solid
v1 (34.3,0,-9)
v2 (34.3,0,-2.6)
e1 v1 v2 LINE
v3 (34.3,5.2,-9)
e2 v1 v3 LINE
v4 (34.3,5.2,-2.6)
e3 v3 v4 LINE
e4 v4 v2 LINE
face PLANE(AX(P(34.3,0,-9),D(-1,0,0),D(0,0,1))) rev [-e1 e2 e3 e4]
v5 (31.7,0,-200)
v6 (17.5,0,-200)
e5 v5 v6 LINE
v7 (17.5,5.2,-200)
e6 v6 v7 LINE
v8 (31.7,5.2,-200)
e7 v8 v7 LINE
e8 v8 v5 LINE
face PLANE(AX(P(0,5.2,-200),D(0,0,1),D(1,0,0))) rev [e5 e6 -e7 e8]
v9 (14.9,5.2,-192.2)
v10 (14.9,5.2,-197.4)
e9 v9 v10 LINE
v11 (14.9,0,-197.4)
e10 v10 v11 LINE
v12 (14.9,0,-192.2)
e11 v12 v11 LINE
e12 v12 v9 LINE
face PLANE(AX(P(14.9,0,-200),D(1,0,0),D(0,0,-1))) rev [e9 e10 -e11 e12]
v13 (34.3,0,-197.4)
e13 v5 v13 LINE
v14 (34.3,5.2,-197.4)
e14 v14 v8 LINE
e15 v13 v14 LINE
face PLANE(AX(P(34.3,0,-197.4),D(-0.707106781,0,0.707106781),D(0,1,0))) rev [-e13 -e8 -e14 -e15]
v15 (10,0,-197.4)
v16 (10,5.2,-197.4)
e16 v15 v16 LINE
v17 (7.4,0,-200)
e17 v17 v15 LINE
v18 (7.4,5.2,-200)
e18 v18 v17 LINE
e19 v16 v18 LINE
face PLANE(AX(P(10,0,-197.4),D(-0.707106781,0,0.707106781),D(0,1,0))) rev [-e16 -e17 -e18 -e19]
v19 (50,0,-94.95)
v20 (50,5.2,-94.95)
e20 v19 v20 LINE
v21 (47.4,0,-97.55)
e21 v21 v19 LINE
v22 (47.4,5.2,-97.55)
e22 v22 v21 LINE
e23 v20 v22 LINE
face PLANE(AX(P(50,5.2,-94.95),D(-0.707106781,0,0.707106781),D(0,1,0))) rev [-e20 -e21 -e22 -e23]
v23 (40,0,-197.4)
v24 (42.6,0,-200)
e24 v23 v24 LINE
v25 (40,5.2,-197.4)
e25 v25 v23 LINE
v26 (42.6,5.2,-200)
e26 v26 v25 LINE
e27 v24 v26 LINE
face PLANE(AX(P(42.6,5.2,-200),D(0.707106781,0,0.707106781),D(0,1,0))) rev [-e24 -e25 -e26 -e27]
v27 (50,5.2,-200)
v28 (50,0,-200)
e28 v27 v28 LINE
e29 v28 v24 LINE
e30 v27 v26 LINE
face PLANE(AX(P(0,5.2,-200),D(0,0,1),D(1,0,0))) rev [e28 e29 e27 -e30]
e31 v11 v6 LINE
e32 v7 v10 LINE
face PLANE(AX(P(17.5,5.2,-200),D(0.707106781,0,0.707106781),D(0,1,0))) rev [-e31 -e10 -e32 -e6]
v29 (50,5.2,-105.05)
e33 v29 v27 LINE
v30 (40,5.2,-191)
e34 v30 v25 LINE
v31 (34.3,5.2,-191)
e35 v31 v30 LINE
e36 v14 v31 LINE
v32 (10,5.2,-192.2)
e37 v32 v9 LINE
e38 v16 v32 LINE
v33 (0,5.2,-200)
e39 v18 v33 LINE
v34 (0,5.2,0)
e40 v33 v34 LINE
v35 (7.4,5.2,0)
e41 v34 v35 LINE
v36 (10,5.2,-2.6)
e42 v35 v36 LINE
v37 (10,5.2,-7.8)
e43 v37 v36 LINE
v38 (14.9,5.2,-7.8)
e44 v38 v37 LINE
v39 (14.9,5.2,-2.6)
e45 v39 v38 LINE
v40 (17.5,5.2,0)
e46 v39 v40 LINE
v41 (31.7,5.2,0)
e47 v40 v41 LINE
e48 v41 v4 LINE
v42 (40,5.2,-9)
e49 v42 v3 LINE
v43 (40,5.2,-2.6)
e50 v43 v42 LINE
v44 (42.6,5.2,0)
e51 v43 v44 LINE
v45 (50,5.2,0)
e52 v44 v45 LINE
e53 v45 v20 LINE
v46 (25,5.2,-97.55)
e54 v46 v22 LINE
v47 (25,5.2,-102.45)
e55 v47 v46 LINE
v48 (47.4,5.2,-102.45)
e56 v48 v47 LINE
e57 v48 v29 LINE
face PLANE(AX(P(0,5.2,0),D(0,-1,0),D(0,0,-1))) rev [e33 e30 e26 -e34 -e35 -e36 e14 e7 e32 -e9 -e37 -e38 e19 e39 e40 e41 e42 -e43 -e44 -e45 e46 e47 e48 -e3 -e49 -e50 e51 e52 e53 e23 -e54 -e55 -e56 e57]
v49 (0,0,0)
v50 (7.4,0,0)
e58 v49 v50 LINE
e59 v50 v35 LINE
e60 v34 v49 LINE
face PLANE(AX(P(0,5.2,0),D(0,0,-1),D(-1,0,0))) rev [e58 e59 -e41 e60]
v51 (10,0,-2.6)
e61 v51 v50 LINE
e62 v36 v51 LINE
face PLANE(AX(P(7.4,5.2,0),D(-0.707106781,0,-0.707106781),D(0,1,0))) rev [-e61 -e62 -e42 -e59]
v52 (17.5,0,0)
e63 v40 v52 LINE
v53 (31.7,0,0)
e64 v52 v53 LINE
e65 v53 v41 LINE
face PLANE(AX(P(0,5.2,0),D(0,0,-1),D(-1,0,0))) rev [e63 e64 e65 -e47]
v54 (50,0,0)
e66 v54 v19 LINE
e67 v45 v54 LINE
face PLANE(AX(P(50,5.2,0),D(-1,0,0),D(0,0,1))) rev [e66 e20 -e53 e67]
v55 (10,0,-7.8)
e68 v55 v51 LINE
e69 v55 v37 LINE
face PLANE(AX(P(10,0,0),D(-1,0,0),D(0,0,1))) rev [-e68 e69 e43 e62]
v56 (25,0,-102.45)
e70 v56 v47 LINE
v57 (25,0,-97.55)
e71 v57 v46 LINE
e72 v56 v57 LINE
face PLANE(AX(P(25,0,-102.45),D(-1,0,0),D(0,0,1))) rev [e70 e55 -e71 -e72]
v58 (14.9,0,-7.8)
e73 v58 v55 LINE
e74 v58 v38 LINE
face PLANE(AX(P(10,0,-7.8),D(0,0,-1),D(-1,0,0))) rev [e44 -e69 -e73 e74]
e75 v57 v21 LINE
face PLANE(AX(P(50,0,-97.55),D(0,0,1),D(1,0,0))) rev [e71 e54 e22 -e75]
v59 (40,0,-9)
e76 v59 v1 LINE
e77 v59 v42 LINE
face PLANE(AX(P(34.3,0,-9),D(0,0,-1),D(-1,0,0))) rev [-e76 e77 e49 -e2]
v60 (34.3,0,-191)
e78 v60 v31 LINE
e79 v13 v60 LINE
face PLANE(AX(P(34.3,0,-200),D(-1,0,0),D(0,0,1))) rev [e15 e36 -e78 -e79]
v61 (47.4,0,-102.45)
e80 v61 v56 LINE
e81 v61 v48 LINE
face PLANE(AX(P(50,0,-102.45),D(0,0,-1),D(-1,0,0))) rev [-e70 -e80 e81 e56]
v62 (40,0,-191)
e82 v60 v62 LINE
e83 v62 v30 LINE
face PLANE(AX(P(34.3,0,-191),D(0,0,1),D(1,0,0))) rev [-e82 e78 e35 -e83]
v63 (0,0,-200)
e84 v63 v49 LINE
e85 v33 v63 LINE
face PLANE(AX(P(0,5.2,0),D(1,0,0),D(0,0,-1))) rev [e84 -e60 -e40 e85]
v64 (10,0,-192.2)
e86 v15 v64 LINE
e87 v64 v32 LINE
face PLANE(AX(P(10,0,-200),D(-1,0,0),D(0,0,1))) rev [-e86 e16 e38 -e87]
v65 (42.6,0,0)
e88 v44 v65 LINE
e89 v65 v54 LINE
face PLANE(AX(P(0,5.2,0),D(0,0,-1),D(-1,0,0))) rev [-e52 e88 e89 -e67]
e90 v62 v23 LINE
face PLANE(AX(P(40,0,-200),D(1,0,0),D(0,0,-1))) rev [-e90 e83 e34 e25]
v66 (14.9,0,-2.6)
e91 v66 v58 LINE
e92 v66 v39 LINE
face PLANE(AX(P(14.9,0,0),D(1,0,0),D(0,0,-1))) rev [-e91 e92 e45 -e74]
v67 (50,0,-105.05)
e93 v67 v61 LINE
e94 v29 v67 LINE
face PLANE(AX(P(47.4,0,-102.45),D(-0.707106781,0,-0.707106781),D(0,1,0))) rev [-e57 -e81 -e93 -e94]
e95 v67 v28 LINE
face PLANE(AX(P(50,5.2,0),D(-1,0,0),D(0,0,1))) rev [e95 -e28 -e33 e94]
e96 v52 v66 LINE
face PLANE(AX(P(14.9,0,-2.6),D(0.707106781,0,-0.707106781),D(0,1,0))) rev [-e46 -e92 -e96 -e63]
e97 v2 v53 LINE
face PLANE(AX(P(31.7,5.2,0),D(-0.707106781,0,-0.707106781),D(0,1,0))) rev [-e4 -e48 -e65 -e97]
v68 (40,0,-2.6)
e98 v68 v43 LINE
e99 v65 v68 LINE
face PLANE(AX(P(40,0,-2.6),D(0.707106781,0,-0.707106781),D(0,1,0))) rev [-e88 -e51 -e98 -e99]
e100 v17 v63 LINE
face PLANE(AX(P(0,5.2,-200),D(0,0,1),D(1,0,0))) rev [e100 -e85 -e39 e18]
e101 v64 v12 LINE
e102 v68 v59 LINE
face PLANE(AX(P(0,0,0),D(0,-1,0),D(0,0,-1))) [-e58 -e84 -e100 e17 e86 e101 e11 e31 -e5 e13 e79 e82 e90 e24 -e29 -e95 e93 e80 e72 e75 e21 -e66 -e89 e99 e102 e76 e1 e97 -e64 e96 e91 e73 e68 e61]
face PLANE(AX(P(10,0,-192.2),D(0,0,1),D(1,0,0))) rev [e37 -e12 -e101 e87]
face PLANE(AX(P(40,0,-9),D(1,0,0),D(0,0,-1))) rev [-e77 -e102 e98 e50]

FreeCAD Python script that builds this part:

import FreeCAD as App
import Part
import Sketcher


def edges_at(feature, points):
    """Names of the edges that pass closest to the given points."""
    edges = feature.Shape.Edges
    near = lambda p: min(range(len(edges)), key=lambda i: edges[i].distToShape(Part.Vertex(*p))[0])
    return sorted({f"Edge{near(p) + 1}" for p in points})

doc = App.newDocument("Part")
params = doc.addObject("Spreadsheet::Sheet", "Params")
for row, (alias, value) in enumerate([
    ("sketch1_width", "50 mm"),
    ("sketch1_height", "200 mm"),
    ("pad1_length", "5.2 mm"),
    ("sketch2_width", "25 mm"),
    ("sketch2_height", "9 mm"),
    ("sketch2_width2", "4.9 mm"),
    ("sketch2_width3", "5.7 mm"),
    ("sketch2_height2", "7.8 mm"),
    ("pocket1_length", "5.2 mm"),
    ("chamfer_size", "2.6 mm"),
], start=1):
    params.set(f"A{row}", alias)
    params.set(f"B{row}", "=" + value)
    params.setAlias(f"B{row}", alias)

body = doc.addObject("PartDesign::Body", "Body")

# Sketch on XZ plane
sketch1 = doc.addObject("Sketcher::SketchObject", "Sketch")
body.addObject(sketch1)
sketch1.AttachmentSupport = (doc.XZ_Plane, [""])
sketch1.MapMode = "FlatFace"
sketch1.addGeometry(Part.LineSegment(App.Vector(0, -200, 0), App.Vector(0, 0, 0)), False)
sketch1.addGeometry(Part.LineSegment(App.Vector(0, 0, 0), App.Vector(50, 0, 0)), False)
sketch1.addGeometry(Part.LineSegment(App.Vector(50, 0, 0), App.Vector(50, -200, 0)), False)
sketch1.addGeometry(Part.LineSegment(App.Vector(50, -200, 0), App.Vector(0, -200, 0)), False)
sketch1.addConstraint(Sketcher.Constraint("Coincident", 0, 2, 1, 1))
sketch1.addConstraint(Sketcher.Constraint("Coincident", 1, 2, 2, 1))
sketch1.addConstraint(Sketcher.Constraint("Coincident", 2, 2, 3, 1))
sketch1.addConstraint(Sketcher.Constraint("Coincident", 3, 2, 0, 1))
sketch1.addConstraint(Sketcher.Constraint("Vertical", 0))
sketch1.addConstraint(Sketcher.Constraint("Horizontal", 1))
sketch1.addConstraint(Sketcher.Constraint("Vertical", 2))
sketch1.addConstraint(Sketcher.Constraint("Horizontal", 3))
sketch1.addConstraint(Sketcher.Constraint("Coincident", 0, 2, -1, 1))
sketch1.addConstraint(Sketcher.Constraint("DistanceX", 1, 1, 1, 2, 50.0))
sketch1.addConstraint(Sketcher.Constraint("DistanceY", 0, 1, 0, 2, 200.0))
sketch1.setExpression("Constraints[9]", "Params.sketch1_width")
sketch1.setExpression("Constraints[10]", "Params.sketch1_height")
pad1 = doc.addObject("PartDesign::Pad", "Pad")
body.addObject(pad1)
pad1.Profile = sketch1
pad1.setExpression("Length", "Params.pad1_length")
pad1.Reversed = True

# Sketch on XZ plane
sketch2 = doc.addObject("Sketcher::SketchObject", "Sketch001")
body.addObject(sketch2)
sketch2.AttachmentSupport = (doc.XZ_Plane, [""])
sketch2.MapMode = "FlatFace"
sketch2.AttachmentOffset = App.Placement(App.Vector(0, 0, -5.2), App.Rotation())
sketch2.addGeometry(Part.LineSegment(App.Vector(10, -200, 0), App.Vector(10, -192.2, 0)), False)
sketch2.addGeometry(Part.LineSegment(App.Vector(10, -192.2, 0), App.Vector(14.9, -192.2, 0)), False)
sketch2.addGeometry(Part.LineSegment(App.Vector(14.9, -192.2, 0), App.Vector(14.9, -200, 0)), False)
sketch2.addGeometry(Part.LineSegment(App.Vector(14.9, -200, 0), App.Vector(10, -200, 0)), False)
sketch2.addGeometry(Part.LineSegment(App.Vector(34.3, -200, 0), App.Vector(34.3, -191, 0)), False)
sketch2.addGeometry(Part.LineSegment(App.Vector(34.3, -191, 0), App.Vector(40, -191, 0)), False)
sketch2.addGeometry(Part.LineSegment(App.Vector(40, -191, 0), App.Vector(40, -200, 0)), False)
sketch2.addGeometry(Part.LineSegment(App.Vector(40, -200, 0), App.Vector(34.3, -200, 0)), False)
sketch2.addGeometry(Part.LineSegment(App.Vector(25, -102.5, 0), App.Vector(25, -97.5, 0)), False)
sketch2.addGeometry(Part.LineSegment(App.Vector(25, -97.5, 0), App.Vector(50, -97.5, 0)), False)
sketch2.addGeometry(Part.LineSegment(App.Vector(50, -97.5, 0), App.Vector(50, -102.5, 0)), False)
sketch2.addGeometry(Part.LineSegment(App.Vector(50, -102.5, 0), App.Vector(25, -102.5, 0)), False)
sketch2.addGeometry(Part.LineSegment(App.Vector(10, -7.8, 0), App.Vector(10, 0, 0)), False)
sketch2.addGeometry(Part.LineSegment(App.Vector(10, 0, 0), App.Vector(14.9, 0, 0)), False)
sketch2.addGeometry(Part.LineSegment(App.Vector(14.9, 0, 0), App.Vector(14.9, -7.8, 0)), False)
sketch2.addGeometry(Part.LineSegment(App.Vector(14.9, -7.8, 0), App.Vector(10, -7.8, 0)), False)
sketch2.addGeometry(Part.LineSegment(App.Vector(34.3, -9, 0), App.Vector(34.3, 0, 0)), False)
sketch2.addGeometry(Part.LineSegment(App.Vector(34.3, 0, 0), App.Vector(40, 0, 0)), False)
sketch2.addGeometry(Part.LineSegment(App.Vector(40, 0, 0), App.Vector(40, -9, 0)), False)
sketch2.addGeometry(Part.LineSegment(App.Vector(40, -9, 0), App.Vector(34.3, -9, 0)), False)
sketch2.addConstraint(Sketcher.Constraint("Coincident", 0, 2, 1, 1))
sketch2.addConstraint(Sketcher.Constraint("Coincident", 1, 2, 2, 1))
sketch2.addConstraint(Sketcher.Constraint("Coincident", 2, 2, 3, 1))
sketch2.addConstraint(Sketcher.Constraint("Coincident", 3, 2, 0, 1))
sketch2.addConstraint(Sketcher.Constraint("Coincident", 4, 2, 5, 1))
sketch2.addConstraint(Sketcher.Constraint("Coincident", 5, 2, 6, 1))
sketch2.addConstraint(Sketcher.Constraint("Coincident", 6, 2, 7, 1))
sketch2.addConstraint(Sketcher.Constraint("Coincident", 7, 2, 4, 1))
sketch2.addConstraint(Sketcher.Constraint("Coincident", 8, 2, 9, 1))
sketch2.addConstraint(Sketcher.Constraint("Coincident", 9, 2, 10, 1))
sketch2.addConstraint(Sketcher.Constraint("Coincident", 10, 2, 11, 1))
sketch2.addConstraint(Sketcher.Constraint("Coincident", 11, 2, 8, 1))
sketch2.addConstraint(Sketcher.Constraint("Coincident", 12, 2, 13, 1))
sketch2.addConstraint(Sketcher.Constraint("Coincident", 13, 2, 14, 1))
sketch2.addConstraint(Sketcher.Constraint("Coincident", 14, 2, 15, 1))
sketch2.addConstraint(Sketcher.Constraint("Coincident", 15, 2, 12, 1))
sketch2.addConstraint(Sketcher.Constraint("Coincident", 16, 2, 17, 1))
sketch2.addConstraint(Sketcher.Constraint("Coincident", 17, 2, 18, 1))
sketch2.addConstraint(Sketcher.Constraint("Coincident", 18, 2, 19, 1))
sketch2.addConstraint(Sketcher.Constraint("Coincident", 19, 2, 16, 1))
sketch2.addConstraint(Sketcher.Constraint("Vertical", 0))
sketch2.addConstraint(Sketcher.Constraint("Horizontal", 1))
sketch2.addConstraint(Sketcher.Constraint("Vertical", 2))
sketch2.addConstraint(Sketcher.Constraint("Horizontal", 3))
sketch2.addConstraint(Sketcher.Constraint("Vertical", 4))
sketch2.addConstraint(Sketcher.Constraint("Horizontal", 5))
sketch2.addConstraint(Sketcher.Constraint("Vertical", 6))
sketch2.addConstraint(Sketcher.Constraint("Horizontal", 7))
sketch2.addConstraint(Sketcher.Constraint("Vertical", 8))
sketch2.addConstraint(Sketcher.Constraint("Horizontal", 9))
sketch2.addConstraint(Sketcher.Constraint("Vertical", 10))
sketch2.addConstraint(Sketcher.Constraint("Horizontal", 11))
sketch2.addConstraint(Sketcher.Constraint("Vertical", 12))
sketch2.addConstraint(Sketcher.Constraint("Horizontal", 13))
sketch2.addConstraint(Sketcher.Constraint("Vertical", 14))
sketch2.addConstraint(Sketcher.Constraint("Horizontal", 15))
sketch2.addConstraint(Sketcher.Constraint("Vertical", 16))
sketch2.addConstraint(Sketcher.Constraint("Horizontal", 17))
sketch2.addConstraint(Sketcher.Constraint("Vertical", 18))
sketch2.addConstraint(Sketcher.Constraint("Horizontal", 19))
sketch2.addConstraint(Sketcher.Constraint("PointOnObject", 12, 2, -1))
sketch2.addConstraint(Sketcher.Constraint("PointOnObject", 16, 2, -1))
sketch2.addConstraint(Sketcher.Constraint("Horizontal", 3, 2, 6, 2))
sketch2.addConstraint(Sketcher.Constraint("Vertical", 3, 2, 12, 2))
sketch2.addConstraint(Sketcher.Constraint("Vertical", 2, 2, 13, 2))
sketch2.addConstraint(Sketcher.Constraint("Vertical", 7, 2, 16, 2))
sketch2.addConstraint(Sketcher.Constraint("Vertical", 6, 2, 17, 2))
sketch2.addConstraint(Sketcher.Constraint("Equal", 15, 8))
sketch2.addConstraint(Sketcher.Constraint("Equal", 2, 12))
sketch2.addConstraint(Sketcher.Constraint("Equal", 6, 16))
sketch2.addConstraint(Sketcher.Constraint("DistanceX", 9, 1, 9, 2, 25.0))
sketch2.addConstraint(Sketcher.Constraint("DistanceY", 4, 1, 4, 2, 9.0))
sketch2.addConstraint(Sketcher.Constraint("DistanceX", 1, 1, 1, 2, 4.9))
sketch2.addConstraint(Sketcher.Constraint("DistanceX", 5, 1, 5, 2, 5.7))
sketch2.addConstraint(Sketcher.Constraint("DistanceY", 0, 1, 0, 2, 7.8))
sketch2.addConstraint(Sketcher.Constraint("DistanceX", -1, 1, 0, 2, 10.0))
sketch2.addConstraint(Sketcher.Constraint("DistanceY", 2, 2, -1, 1, 200.0))
sketch2.addConstraint(Sketcher.Constraint("DistanceX", -1, 1, 5, 2, 40.0))
sketch2.addConstraint(Sketcher.Constraint("DistanceX", -1, 1, 8, 2, 25.0))
sketch2.addConstraint(Sketcher.Constraint("DistanceY", 8, 2, -1, 1, 97.55))
sketch2.setExpression("Constraints[50]", "Params.sketch2_width")
sketch2.setExpression("Constraints[51]", "Params.sketch2_height")
sketch2.setExpression("Constraints[52]", "Params.sketch2_width2")
sketch2.setExpression("Constraints[53]", "Params.sketch2_width3")
sketch2.setExpression("Constraints[54]", "Params.sketch2_height2")
pocket1 = doc.addObject("PartDesign::Pocket", "Pocket")
body.addObject(pocket1)
pocket1.Profile = sketch2
pocket1.setExpression("Length", "Params.pocket1_length")
pocket1.Reversed = True
doc.recompute()

chamfer = doc.addObject("PartDesign::Chamfer", "Chamfer")
body.addObject(chamfer)
chamfer.Base = (pocket1, edges_at(pocket1, [
    (10, 2.6, 0),
    (14.9, 2.6, 0),
    (34.3, 2.6, 0),
    (40, 2.6, 0),
    (50, 2.6, -102.45),
    (50, 2.6, -97.55),
    (34.3, 2.6, -200),
    (40, 2.6, -200),
    (10, 2.6, -200),
    (14.9, 2.6, -200),
]))
chamfer.setExpression("Size", "Params.chamfer_size")

doc.recompute()
